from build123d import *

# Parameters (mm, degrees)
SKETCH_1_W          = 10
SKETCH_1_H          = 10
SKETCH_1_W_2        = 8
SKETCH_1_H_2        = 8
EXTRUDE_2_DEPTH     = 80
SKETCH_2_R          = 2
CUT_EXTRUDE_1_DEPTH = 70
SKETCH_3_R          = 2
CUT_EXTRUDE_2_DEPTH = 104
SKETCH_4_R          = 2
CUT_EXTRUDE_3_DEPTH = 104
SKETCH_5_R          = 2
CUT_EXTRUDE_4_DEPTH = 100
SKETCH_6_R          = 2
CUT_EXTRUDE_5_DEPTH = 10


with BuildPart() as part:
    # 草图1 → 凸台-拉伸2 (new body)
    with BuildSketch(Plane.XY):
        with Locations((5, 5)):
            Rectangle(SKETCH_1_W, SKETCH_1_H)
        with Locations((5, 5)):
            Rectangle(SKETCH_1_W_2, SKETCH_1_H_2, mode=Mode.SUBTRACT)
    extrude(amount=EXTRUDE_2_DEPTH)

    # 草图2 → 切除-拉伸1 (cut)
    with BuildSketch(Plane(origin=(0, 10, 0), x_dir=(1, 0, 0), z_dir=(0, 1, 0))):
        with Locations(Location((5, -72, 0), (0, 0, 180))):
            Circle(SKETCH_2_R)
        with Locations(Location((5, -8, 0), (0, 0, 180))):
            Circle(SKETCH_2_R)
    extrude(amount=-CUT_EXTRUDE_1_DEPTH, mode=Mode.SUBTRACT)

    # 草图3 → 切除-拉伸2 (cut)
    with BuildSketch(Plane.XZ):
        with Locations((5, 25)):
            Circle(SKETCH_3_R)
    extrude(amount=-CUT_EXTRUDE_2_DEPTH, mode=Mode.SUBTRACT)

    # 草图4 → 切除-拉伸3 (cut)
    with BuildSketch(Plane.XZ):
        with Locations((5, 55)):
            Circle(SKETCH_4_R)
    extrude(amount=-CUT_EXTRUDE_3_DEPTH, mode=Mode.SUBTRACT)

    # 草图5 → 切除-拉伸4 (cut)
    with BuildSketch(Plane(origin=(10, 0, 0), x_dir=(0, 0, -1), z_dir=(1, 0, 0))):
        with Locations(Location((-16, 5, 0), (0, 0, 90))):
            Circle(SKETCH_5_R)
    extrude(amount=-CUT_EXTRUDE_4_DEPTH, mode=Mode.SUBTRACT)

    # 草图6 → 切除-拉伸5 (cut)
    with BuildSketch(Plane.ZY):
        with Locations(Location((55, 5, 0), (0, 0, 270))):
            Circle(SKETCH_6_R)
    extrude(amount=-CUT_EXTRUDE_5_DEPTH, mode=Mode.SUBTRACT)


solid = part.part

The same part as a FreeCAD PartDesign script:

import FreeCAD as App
import Part
import Sketcher
Q = App.Units.Quantity


def add_polygon(sketch, points):
    """Adds a closed chain of lines whose ends are joined by coincident constraints."""
    first, n = sketch.GeometryCount, len(points)
    for a, b in zip(points, points[1:] + points[:1]):
        sketch.addGeometry(Part.LineSegment(App.Vector(*a, 0), App.Vector(*b, 0)), False)
    for i in range(n):
        sketch.addConstraint(Sketcher.Constraint("Coincident", first + i, 2, first + (i + 1) % n, 1))

doc = App.newDocument("Part")
body = doc.addObject("PartDesign::Body", "Body")

sketch1 = body.newObject("Sketcher::SketchObject", "Sketch")
sketch1.AttachmentSupport = (doc.getObject("XY_Plane"), [""])
sketch1.MapMode = "FlatFace"
add_polygon(sketch1, [(0, 10), (0, 0), (10, 0), (10, 10)])
add_polygon(sketch1, [(9, 1), (1, 1), (1, 9), (9, 9)])
sketch1.addConstraint([
    Sketcher.Constraint("Vertical", 0),
    Sketcher.Constraint("Horizontal", 1),
    Sketcher.Constraint("Vertical", 2),
    Sketcher.Constraint("Horizontal", 3),
    Sketcher.Constraint("Horizontal", 4),
    Sketcher.Constraint("Vertical", 5),
    Sketcher.Constraint("Horizontal", 6),
    Sketcher.Constraint("Vertical", 7),
    Sketcher.Constraint("Coincident", 0, 2, -1, 1),
    Sketcher.Constraint("Equal", 3, 0),
    Sketcher.Constraint("Equal", 6, 5),
    Sketcher.Constraint("DistanceX", 1, 1, 1, 2, Q("10 mm")),
    Sketcher.Constraint("DistanceX", 4, 2, 4, 1, Q("8 mm")),
    Sketcher.Constraint("DistanceX", -1, 1, 4, 2, Q("1 mm")),
    Sketcher.Constraint("DistanceY", -1, 1, 4, 2, Q("1 mm")),
])
pad1 = body.newObject("PartDesign::Pad", "Pad")
pad1.Profile = sketch1
pad1.Length = 80

sketch2 = body.newObject("Sketcher::SketchObject", "Sketch001")
sketch2.AttachmentSupport = (doc.getObject("XZ_Plane"), [""])
sketch2.MapMode = "FlatFace"
sketch2.AttachmentOffset = App.Placement(App.Vector(0, 0, -10), App.Rotation())
sketch2.addGeometry([
    Part.Circle(App.Vector(5, 72, 0), App.Vector(0, 0, 1), 2),
    Part.Circle(App.Vector(5, 8, 0), App.Vector(0, 0, 1), 2),
], False)
sketch2.addConstraint([
    Sketcher.Constraint("Equal", 0, 1),
    Sketcher.Constraint("Vertical", 0, 3, 1, 3),
    Sketcher.Constraint("Diameter", 0, Q("4 mm")),
    Sketcher.Constraint("DistanceX", -1, 1, 0, 3, Q("5 mm")),
    Sketcher.Constraint("DistanceY", -1, 1, 0, 3, Q("72 mm")),
    Sketcher.Constraint("DistanceY", -1, 1, 1, 3, Q("8 mm")),
])
pocket1 = body.newObject("PartDesign::Pocket", "Pocket")
pocket1.Profile = sketch2
pocket1.Length = 70
pocket1.Reversed = True

sketch3 = body.newObject("Sketcher::SketchObject", "Sketch002")
sketch3.AttachmentSupport = (doc.getObject("XZ_Plane"), [""])
sketch3.MapMode = "FlatFace"
sketch3.addGeometry(Part.Circle(App.Vector(5, 25, 0), App.Vector(0, 0, 1), 2), False)
sketch3.addConstraint([
    Sketcher.Constraint("Diameter", 0, Q("4 mm")),
    Sketcher.Constraint("DistanceX", -1, 1, 0, 3, Q("5 mm")),
    Sketcher.Constraint("DistanceY", -1, 1, 0, 3, Q("25 mm")),
])
pocket2 = body.newObject("PartDesign::Pocket", "Pocket001")
pocket2.Profile = sketch3
pocket2.Length = 104

sketch4 = body.newObject("Sketcher::SketchObject", "Sketch003")
sketch4.AttachmentSupport = (doc.getObject("XZ_Plane"), [""])
sketch4.MapMode = "FlatFace"
sketch4.addGeometry(Part.Circle(App.Vector(5, 55, 0), App.Vector(0, 0, 1), 2), False)
sketch4.addConstraint([
    Sketcher.Constraint("Diameter", 0, Q("4 mm")),
    Sketcher.Constraint("DistanceX", -1, 1, 0, 3, Q("5 mm")),
    Sketcher.Constraint("DistanceY", -1, 1, 0, 3, Q("55 mm")),
])
pocket3 = body.newObject("PartDesign::Pocket", "Pocket002")
pocket3.Profile = sketch4
pocket3.Length = 104

sketch5 = body.newObject("Sketcher::SketchObject", "Sketch004")
sketch5.AttachmentSupport = (doc.getObject("YZ_Plane"), [""])
sketch5.MapMode = "FlatFace"
sketch5.AttachmentOffset = App.Placement(App.Vector(0, 0, 10), App.Rotation())
sketch5.addGeometry(Part.Circle(App.Vector(5, 16, 0), App.Vector(0, 0, 1), 2), False)
sketch5.addConstraint([
    Sketcher.Constraint("Diameter", 0, Q("4 mm")),
    Sketcher.Constraint("DistanceX", -1, 1, 0, 3, Q("5 mm")),
    Sketcher.Constraint("DistanceY", -1, 1, 0, 3, Q("16 mm")),
])
pocket4 = body.newObject("PartDesign::Pocket", "Pocket003")
pocket4.Profile = sketch5
pocket4.Length = 100

sketch6 = body.newObject("Sketcher::SketchObject", "Sketch005")
sketch6.AttachmentSupport = (doc.getObject("YZ_Plane"), [""])
sketch6.MapMode = "FlatFace"
sketch6.addGeometry(Part.Circle(App.Vector(5, 55, 0), App.Vector(0, 0, 1), 2), False)
sketch6.addConstraint([
    Sketcher.Constraint("Diameter", 0, Q("4 mm")),
    Sketcher.Constraint("DistanceX", -1, 1, 0, 3, Q("5 mm")),
    Sketcher.Constraint("DistanceY", -1, 1, 0, 3, Q("55 mm")),
])
pocket5 = body.newObject("PartDesign::Pocket", "Pocket004")
pocket5.Profile = sketch6
pocket5.Length = 10
pocket5.Reversed = True

doc.recompute()
